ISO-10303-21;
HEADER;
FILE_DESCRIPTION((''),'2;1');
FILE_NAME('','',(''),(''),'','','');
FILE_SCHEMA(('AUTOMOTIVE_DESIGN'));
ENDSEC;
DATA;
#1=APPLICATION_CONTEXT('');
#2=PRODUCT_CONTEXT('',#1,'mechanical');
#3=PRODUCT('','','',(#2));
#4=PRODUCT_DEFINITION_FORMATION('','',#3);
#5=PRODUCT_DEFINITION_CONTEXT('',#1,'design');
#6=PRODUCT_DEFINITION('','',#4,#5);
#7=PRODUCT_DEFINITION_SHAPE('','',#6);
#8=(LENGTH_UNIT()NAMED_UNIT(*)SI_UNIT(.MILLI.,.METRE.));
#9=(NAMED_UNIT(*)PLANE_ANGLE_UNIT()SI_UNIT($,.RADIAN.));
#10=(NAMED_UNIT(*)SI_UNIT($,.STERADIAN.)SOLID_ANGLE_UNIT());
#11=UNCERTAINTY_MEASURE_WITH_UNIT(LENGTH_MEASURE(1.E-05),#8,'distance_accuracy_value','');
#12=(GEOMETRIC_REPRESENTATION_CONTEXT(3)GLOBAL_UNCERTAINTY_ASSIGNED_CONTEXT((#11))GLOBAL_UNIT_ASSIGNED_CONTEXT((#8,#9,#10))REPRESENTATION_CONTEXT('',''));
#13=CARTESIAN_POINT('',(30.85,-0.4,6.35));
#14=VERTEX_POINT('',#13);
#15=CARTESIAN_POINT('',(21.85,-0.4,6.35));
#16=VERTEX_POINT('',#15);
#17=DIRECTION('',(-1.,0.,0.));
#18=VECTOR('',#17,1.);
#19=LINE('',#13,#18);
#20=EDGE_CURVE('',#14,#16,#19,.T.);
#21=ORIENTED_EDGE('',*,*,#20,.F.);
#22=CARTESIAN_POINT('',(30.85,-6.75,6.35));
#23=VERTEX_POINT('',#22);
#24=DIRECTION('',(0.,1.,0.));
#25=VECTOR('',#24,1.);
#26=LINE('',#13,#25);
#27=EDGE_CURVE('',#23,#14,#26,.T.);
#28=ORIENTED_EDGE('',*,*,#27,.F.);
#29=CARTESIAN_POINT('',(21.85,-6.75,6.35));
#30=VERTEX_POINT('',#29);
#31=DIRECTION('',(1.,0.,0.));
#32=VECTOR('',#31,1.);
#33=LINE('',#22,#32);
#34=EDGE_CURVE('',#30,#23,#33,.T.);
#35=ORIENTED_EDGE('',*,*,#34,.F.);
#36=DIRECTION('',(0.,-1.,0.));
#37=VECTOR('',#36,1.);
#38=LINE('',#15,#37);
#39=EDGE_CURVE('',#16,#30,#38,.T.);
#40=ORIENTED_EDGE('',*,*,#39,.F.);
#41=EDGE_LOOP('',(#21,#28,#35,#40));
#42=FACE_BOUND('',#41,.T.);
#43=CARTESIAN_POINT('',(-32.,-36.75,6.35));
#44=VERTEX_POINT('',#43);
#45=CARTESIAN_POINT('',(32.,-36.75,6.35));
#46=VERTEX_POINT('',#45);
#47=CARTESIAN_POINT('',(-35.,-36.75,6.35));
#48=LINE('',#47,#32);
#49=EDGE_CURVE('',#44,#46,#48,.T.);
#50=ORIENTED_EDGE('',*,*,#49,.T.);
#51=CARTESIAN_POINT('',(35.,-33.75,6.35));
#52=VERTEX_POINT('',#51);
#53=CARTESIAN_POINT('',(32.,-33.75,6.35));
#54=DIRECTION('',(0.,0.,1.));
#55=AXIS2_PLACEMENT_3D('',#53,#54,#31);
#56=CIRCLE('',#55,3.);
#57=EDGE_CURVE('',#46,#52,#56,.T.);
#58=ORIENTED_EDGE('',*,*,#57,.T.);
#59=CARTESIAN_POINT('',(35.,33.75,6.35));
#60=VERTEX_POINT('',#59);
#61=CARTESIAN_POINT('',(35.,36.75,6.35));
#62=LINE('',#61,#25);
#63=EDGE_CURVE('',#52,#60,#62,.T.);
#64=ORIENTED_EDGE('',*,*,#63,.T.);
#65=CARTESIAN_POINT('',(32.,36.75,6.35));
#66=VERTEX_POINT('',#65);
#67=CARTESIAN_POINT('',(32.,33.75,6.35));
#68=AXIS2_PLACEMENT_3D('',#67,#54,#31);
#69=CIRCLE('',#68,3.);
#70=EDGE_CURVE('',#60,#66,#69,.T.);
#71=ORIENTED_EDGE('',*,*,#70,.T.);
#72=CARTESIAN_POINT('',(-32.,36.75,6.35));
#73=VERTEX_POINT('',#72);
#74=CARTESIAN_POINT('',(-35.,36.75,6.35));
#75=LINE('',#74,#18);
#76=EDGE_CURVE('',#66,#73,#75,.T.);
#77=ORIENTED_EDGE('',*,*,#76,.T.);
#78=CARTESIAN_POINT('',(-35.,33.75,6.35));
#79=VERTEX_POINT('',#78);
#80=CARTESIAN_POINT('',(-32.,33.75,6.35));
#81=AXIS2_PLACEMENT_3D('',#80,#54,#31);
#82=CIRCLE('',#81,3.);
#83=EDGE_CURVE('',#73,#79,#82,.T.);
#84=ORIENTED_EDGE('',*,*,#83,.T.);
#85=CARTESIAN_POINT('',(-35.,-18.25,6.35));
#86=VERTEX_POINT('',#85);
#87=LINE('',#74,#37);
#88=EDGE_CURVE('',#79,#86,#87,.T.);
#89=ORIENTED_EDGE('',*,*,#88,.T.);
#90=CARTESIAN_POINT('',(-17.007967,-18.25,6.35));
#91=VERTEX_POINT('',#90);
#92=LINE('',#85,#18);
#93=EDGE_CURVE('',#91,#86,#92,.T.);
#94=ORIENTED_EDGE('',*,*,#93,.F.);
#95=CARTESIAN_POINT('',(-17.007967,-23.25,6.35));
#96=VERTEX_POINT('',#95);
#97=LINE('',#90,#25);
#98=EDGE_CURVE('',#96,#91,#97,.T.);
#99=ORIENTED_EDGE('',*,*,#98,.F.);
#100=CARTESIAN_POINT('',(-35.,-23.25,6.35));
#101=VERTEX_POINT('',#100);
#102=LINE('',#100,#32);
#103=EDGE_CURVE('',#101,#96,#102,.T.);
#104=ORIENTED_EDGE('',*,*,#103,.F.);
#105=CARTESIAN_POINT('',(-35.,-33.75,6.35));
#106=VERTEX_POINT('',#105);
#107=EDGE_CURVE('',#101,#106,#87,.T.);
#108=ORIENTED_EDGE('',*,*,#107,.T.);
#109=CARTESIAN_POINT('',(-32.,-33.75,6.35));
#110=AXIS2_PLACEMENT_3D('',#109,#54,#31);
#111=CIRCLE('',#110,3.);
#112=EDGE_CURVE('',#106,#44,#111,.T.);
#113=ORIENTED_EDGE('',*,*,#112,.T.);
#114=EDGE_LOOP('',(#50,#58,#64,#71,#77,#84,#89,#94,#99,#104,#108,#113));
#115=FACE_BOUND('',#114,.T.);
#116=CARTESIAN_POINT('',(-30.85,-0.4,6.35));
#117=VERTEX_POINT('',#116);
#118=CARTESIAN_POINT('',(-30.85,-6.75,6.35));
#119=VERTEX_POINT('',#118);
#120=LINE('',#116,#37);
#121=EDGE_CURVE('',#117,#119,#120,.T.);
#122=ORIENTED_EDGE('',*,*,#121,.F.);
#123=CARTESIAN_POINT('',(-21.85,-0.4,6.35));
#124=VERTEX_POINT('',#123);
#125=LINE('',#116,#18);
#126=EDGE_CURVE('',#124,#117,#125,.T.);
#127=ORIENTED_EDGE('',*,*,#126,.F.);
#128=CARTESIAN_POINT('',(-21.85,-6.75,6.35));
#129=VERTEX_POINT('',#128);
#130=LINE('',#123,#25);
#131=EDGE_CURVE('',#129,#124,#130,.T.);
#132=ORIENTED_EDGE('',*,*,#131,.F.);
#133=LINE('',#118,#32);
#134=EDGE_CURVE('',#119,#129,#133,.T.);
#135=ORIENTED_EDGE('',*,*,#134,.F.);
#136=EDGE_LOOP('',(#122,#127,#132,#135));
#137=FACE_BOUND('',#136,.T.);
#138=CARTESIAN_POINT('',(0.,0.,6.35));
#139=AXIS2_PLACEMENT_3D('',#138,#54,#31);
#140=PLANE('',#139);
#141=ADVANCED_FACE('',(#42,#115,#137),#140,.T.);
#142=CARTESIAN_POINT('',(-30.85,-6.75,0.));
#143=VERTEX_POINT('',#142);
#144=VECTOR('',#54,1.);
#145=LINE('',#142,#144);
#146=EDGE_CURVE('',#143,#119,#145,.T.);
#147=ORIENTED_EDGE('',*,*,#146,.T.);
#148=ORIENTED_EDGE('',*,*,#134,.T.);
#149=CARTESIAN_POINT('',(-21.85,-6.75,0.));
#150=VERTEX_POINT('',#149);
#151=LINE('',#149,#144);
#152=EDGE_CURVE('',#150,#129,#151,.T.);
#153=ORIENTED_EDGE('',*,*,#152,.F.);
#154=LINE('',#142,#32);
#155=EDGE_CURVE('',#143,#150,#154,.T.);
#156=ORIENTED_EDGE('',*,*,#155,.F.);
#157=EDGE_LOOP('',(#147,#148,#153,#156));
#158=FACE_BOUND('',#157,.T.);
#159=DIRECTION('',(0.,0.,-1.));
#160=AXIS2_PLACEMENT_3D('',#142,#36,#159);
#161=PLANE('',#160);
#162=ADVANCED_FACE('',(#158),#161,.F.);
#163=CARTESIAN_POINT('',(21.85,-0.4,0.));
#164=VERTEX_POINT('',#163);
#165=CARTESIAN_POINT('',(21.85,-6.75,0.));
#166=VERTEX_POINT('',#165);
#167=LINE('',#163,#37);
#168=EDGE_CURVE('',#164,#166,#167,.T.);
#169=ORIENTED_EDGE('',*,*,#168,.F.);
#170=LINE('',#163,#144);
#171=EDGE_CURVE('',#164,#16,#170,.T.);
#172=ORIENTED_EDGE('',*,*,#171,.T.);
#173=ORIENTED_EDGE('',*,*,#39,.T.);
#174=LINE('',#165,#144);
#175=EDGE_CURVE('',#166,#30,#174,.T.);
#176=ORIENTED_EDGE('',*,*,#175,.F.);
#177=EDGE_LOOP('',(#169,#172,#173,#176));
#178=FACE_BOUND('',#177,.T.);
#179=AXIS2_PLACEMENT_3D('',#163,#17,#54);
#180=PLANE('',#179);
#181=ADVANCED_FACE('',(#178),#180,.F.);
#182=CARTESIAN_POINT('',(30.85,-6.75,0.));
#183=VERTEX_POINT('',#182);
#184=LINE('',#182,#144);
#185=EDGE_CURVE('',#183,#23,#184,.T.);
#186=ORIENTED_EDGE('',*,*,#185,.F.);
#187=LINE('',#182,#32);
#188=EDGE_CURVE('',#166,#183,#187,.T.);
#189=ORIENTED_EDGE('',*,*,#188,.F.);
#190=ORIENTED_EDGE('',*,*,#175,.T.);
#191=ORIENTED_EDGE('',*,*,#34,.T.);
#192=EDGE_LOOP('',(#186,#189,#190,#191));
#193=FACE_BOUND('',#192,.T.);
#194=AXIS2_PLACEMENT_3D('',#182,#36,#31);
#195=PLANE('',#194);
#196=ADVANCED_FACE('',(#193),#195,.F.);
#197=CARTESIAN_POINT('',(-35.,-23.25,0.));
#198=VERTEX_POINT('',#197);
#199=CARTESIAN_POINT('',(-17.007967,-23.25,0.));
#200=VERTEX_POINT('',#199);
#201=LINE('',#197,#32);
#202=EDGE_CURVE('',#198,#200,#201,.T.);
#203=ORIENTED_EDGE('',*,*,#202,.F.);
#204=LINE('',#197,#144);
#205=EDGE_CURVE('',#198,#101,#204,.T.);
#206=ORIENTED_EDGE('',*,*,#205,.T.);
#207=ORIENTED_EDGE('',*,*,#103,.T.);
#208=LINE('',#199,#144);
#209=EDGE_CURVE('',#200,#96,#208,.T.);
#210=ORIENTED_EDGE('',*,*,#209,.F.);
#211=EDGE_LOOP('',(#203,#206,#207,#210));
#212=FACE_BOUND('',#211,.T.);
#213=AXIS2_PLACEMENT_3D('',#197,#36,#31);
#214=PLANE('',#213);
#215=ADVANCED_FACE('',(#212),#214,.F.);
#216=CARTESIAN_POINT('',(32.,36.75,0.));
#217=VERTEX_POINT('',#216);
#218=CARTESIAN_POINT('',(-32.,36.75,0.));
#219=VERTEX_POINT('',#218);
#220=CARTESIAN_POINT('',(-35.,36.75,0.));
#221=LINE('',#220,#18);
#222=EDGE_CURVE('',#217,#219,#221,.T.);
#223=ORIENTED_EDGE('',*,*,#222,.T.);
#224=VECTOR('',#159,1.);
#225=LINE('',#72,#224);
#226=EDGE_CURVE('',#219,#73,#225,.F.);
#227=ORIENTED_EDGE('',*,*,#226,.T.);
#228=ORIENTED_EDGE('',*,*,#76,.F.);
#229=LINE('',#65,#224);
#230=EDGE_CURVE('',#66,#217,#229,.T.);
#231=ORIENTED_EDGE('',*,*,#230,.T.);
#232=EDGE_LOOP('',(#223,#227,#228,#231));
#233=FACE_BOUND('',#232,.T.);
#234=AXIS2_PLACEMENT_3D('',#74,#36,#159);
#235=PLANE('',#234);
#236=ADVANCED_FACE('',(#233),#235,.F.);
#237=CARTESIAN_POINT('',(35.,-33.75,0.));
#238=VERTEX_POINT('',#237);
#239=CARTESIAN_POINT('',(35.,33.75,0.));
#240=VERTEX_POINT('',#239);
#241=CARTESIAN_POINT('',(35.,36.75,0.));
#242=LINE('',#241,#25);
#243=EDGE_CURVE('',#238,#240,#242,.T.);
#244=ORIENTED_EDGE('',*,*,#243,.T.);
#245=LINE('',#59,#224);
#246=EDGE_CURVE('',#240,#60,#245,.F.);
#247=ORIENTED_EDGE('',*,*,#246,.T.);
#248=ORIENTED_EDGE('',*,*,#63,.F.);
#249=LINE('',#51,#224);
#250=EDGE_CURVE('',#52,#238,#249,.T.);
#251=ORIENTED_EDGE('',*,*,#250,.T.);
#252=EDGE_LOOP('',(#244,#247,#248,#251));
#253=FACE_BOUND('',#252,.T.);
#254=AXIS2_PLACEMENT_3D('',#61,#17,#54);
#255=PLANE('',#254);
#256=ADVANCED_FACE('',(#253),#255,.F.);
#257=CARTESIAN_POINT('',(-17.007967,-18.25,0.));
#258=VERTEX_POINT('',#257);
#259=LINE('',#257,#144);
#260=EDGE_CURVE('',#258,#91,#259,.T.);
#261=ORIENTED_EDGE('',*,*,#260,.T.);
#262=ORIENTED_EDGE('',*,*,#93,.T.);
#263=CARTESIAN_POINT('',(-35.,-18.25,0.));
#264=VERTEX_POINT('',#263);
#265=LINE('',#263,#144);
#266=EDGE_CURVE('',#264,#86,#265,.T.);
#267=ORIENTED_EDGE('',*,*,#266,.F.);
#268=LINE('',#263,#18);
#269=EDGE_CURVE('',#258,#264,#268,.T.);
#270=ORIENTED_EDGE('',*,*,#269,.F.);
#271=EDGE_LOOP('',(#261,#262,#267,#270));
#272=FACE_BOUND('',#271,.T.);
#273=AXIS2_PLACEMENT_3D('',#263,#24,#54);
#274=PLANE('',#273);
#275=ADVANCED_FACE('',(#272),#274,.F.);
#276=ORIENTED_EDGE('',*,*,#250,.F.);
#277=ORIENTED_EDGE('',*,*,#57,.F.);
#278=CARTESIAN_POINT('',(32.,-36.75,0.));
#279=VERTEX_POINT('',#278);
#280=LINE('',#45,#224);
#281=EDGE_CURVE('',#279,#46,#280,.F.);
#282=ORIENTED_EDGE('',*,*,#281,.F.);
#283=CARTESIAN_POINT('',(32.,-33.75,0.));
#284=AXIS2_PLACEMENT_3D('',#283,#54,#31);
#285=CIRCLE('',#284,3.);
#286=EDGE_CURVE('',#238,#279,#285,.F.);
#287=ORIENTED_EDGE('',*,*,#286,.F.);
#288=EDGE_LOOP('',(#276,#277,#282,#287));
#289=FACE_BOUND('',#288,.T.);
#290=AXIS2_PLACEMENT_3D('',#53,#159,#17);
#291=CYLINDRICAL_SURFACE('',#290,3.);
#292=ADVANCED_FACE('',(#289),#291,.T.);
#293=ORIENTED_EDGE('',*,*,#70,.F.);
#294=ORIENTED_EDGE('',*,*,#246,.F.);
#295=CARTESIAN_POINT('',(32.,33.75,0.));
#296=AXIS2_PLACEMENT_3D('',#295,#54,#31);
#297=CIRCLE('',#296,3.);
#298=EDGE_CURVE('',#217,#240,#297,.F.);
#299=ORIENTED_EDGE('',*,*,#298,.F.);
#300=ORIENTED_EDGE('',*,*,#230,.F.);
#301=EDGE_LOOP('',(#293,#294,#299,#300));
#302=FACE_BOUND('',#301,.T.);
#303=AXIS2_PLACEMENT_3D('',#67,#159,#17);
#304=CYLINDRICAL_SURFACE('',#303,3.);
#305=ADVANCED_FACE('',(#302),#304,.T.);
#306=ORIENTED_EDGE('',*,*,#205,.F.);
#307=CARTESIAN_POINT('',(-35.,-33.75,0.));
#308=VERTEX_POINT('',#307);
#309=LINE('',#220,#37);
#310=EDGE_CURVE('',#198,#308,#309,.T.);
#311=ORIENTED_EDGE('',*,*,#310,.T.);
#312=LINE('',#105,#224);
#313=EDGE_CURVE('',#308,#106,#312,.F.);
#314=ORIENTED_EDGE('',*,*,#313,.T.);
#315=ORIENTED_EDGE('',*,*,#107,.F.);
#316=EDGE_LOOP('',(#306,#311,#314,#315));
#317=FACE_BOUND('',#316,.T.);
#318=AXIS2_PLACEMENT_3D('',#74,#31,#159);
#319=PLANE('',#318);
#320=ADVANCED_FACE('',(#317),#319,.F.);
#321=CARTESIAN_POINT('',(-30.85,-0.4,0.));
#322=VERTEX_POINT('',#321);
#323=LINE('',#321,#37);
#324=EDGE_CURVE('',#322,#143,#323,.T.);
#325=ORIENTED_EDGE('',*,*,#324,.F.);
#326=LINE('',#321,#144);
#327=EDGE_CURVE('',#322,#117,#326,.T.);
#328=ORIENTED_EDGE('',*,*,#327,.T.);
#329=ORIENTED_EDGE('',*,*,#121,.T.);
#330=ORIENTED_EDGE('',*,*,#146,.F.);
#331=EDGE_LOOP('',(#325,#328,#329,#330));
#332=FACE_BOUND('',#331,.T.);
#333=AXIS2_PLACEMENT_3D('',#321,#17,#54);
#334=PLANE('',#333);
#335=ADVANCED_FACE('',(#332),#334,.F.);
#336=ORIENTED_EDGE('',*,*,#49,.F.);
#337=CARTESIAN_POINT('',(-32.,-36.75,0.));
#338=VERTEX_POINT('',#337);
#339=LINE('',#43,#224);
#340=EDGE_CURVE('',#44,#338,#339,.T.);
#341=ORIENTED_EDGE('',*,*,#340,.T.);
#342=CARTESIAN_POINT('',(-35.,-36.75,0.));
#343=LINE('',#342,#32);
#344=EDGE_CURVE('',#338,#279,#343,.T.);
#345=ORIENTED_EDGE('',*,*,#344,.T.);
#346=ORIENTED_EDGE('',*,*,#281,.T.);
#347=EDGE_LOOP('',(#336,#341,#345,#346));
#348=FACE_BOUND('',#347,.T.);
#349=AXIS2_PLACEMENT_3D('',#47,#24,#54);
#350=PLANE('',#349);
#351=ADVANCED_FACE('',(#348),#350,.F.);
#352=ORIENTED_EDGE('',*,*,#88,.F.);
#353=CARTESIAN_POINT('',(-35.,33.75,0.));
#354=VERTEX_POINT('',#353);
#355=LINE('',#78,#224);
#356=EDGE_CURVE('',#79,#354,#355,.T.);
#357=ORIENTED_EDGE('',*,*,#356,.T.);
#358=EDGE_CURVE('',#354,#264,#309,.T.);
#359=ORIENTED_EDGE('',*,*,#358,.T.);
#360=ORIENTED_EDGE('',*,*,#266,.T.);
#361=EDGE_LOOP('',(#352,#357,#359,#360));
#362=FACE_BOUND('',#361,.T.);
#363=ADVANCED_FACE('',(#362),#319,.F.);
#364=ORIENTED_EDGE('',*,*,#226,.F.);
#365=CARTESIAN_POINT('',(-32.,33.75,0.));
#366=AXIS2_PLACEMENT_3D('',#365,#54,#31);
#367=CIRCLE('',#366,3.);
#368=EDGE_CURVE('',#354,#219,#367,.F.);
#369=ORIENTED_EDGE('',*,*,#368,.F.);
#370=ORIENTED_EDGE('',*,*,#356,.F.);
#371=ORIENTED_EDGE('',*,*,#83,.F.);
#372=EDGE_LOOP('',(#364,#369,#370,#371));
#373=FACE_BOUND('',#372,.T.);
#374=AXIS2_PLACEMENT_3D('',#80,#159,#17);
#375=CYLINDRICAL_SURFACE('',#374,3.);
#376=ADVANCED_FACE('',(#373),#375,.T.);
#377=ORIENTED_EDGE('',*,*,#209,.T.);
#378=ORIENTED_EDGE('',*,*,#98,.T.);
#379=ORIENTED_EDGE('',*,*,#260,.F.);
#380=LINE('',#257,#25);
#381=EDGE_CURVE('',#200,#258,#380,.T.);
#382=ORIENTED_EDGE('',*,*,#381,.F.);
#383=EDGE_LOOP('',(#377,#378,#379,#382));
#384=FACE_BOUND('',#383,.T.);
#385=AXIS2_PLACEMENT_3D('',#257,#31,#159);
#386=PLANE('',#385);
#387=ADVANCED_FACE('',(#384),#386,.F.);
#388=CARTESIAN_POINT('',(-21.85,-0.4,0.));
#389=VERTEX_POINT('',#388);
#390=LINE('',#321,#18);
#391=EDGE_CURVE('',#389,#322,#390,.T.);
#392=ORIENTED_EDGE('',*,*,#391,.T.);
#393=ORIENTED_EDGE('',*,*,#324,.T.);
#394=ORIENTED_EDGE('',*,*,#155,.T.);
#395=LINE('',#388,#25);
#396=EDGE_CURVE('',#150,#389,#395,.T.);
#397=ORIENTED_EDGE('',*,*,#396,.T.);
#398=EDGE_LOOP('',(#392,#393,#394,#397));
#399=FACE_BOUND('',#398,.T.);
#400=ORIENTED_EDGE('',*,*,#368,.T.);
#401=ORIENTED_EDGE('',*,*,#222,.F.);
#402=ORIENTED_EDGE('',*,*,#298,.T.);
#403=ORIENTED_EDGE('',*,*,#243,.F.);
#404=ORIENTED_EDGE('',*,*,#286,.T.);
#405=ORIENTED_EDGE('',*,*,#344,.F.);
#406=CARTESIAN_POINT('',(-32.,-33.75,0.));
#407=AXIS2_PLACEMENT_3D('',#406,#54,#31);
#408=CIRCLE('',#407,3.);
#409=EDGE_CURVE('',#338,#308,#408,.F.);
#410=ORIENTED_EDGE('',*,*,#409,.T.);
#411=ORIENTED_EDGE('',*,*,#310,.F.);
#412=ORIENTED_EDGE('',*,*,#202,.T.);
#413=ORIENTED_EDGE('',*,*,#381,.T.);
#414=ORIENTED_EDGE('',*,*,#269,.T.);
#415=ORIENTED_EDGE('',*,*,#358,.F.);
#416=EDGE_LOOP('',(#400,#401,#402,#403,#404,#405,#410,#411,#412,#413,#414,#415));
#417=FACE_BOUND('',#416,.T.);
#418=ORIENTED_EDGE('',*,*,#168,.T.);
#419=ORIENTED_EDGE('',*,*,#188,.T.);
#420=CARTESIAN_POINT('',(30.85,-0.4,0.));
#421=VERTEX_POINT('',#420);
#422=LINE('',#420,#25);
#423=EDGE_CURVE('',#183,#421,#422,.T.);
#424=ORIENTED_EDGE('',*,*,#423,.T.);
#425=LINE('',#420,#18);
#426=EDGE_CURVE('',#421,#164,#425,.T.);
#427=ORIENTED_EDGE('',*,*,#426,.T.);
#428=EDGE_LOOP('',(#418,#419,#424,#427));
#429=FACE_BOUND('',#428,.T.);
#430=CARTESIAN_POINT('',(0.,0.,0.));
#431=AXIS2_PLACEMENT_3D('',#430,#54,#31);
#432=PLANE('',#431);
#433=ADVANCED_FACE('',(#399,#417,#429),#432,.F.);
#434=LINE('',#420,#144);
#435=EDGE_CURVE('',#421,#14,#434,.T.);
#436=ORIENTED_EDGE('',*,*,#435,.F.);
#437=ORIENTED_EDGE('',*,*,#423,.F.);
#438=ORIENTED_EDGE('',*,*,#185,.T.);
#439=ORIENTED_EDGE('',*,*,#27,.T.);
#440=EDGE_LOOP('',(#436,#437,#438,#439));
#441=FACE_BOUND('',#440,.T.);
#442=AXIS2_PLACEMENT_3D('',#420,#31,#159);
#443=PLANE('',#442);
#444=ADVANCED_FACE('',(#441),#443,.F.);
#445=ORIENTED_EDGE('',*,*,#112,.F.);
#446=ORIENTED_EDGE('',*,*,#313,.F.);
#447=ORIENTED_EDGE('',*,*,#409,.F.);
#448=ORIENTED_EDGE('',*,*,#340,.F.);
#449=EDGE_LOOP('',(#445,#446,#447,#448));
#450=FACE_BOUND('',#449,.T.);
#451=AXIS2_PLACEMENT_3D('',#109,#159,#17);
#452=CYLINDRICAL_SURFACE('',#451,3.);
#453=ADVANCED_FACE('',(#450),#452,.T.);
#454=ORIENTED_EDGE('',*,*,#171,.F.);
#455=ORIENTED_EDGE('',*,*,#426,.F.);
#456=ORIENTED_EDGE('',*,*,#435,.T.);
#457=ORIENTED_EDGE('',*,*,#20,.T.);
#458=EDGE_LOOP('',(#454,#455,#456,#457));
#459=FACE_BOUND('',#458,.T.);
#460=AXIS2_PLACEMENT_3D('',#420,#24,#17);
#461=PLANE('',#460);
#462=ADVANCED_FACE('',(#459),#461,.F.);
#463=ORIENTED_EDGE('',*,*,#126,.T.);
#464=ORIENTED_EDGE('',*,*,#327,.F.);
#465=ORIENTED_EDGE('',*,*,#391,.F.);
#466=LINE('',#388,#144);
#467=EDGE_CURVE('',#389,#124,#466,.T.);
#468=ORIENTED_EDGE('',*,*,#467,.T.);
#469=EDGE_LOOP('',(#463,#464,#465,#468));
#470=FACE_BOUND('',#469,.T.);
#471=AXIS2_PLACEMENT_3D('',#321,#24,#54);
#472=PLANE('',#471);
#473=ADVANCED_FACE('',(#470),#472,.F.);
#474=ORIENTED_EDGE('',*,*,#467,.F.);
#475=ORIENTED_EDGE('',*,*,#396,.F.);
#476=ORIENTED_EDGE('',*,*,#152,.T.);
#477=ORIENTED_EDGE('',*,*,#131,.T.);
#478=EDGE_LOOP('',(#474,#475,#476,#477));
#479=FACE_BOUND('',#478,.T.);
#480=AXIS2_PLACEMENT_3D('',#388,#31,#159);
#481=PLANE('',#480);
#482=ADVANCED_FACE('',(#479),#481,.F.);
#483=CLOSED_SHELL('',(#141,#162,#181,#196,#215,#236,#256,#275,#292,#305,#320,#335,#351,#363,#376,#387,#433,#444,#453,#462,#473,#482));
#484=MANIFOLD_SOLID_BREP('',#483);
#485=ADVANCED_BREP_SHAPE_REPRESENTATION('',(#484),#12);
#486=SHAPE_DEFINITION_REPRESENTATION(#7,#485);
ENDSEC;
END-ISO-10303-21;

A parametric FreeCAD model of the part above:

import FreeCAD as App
import Part
import Sketcher
from FreeCAD import Vector


def edges_at(feature, points):
    """Names of the edges that pass closest to the given points."""
    edges = feature.Shape.Edges
    near = lambda p: min(range(len(edges)), key=lambda i: edges[i].distToShape(Part.Vertex(*p))[0])
    return sorted({f"Edge{near(p) + 1}" for p in points})


def add_polygon(sketch, points):
    """Adds a closed chain of lines whose ends are joined by coincident constraints."""
    first, n = sketch.GeometryCount, len(points)
    for a, b in zip(points, points[1:] + points[:1]):
        sketch.addGeometry(Part.LineSegment(App.Vector(*a, 0), App.Vector(*b, 0)), False)
    for i in range(n):
        sketch.addConstraint(Sketcher.Constraint("Coincident", first + i, 2, first + (i + 1) % n, 1))

doc = App.newDocument("Part")
body = doc.addObject("PartDesign::Body", "Body")

# Sketch on XY plane
sketch1 = body.newObject("Sketcher::SketchObject", "Sketch")
sketch1.AttachmentSupport = (doc.getObject("XY_Plane"), [""])
sketch1.MapMode = "FlatFace"
add_polygon(sketch1, [(-35, 37), (-35, -37), (35, -37), (35, 37)])  # lines 0-3
sketch1.addConstraint([
    Sketcher.Constraint("Vertical", 0),
    Sketcher.Constraint("Horizontal", 1),
    Sketcher.Constraint("Vertical", 2),
    Sketcher.Constraint("Horizontal", 3),
    Sketcher.Constraint("Symmetric", 0, 2, 2, 2, -1, 1),
    Sketcher.Constraint("DistanceX", 1, 1, 1, 2, 70.0),
    Sketcher.Constraint("DistanceY", 0, 2, 0, 1, 73.5),
])
pad1 = body.newObject("PartDesign::Pad", "Pad")
pad1.Profile = sketch1
pad1.Length = 6.35

# Sketch on XY plane
sketch2 = body.newObject("Sketcher::SketchObject", "Sketch001")
sketch2.AttachmentSupport = (doc.getObject("XY_Plane"), [""])
sketch2.MapMode = "FlatFace"
sketch2.AttachmentOffset = App.Placement(Vector(0, 0, 6.35), App.Rotation())
add_polygon(sketch2, [(-31, 0), (-31, -7), (-22, -7), (-22, 0)])  # lines 0-3
add_polygon(sketch2, [(-35, -18), (-35, -23), (-17, -23), (-17, -18)])  # lines 4-7
add_polygon(sketch2, [(22, 0), (22, -7), (31, -7), (31, 0)])  # lines 8-11
sketch2.addConstraint([
    Sketcher.Constraint("Vertical", 0),
    Sketcher.Constraint("Horizontal", 1),
    Sketcher.Constraint("Vertical", 2),
    Sketcher.Constraint("Horizontal", 3),
    Sketcher.Constraint("Vertical", 4),
    Sketcher.Constraint("Horizontal", 5),
    Sketcher.Constraint("Vertical", 6),
    Sketcher.Constraint("Horizontal", 7),
    Sketcher.Constraint("Vertical", 8),
    Sketcher.Constraint("Horizontal", 9),
    Sketcher.Constraint("Vertical", 10),
    Sketcher.Constraint("Horizontal", 11),
    Sketcher.Constraint("Symmetric", 1, 2, 8, 2, -2),
    Sketcher.Constraint("Symmetric", 3, 2, 10, 2, -2),
    Sketcher.Constraint("DistanceX", 1, 1, 1, 2, 9.0),
    Sketcher.Constraint("DistanceY", 4, 2, 4, 1, 5.0),
    Sketcher.Constraint("DistanceX", 4, 2, -1, 1, 35.0),
    Sketcher.Constraint("DistanceY", 0, 2, 0, 1, 6.35),
    Sketcher.Constraint("DistanceY", 2, 2, -1, 1, 0.4),
    Sketcher.Constraint("DistanceY", 4, 2, 0, 2, 16.5),
    Sketcher.Constraint("DistanceX", 1, 2, 8, 2, 43.7),
    Sketcher.Constraint("DistanceX", 5, 1, 5, 2, 17.992033),
])
pocket1 = body.newObject("PartDesign::Pocket", "Pocket")
pocket1.Profile = sketch2
pocket1.Length = 6.35
doc.recompute()

fillet = body.newObject("PartDesign::Fillet", "Fillet")
fillet.Base = (pocket1, edges_at(pocket1, [
    (35, -36.75, 3.175),
    (-35, -36.75, 3.175),
    (-35, 36.75, 3.175),
    (35, 36.75, 3.175),
]))
fillet.Radius = 3

doc.recompute()
